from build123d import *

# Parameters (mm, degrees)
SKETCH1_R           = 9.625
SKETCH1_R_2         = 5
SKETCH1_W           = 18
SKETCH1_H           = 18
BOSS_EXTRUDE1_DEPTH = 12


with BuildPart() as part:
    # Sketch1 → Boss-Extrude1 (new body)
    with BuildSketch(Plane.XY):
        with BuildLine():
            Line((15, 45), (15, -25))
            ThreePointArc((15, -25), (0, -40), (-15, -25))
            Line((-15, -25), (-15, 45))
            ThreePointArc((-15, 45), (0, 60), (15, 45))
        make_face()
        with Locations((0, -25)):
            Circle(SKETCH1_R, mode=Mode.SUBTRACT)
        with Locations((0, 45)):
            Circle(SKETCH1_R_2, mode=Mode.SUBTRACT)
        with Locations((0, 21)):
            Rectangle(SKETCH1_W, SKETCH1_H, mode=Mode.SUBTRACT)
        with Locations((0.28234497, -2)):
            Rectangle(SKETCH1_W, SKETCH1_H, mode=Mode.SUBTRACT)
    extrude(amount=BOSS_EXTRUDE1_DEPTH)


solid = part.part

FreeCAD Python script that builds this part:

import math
import FreeCAD as App
import Part
import Sketcher
Q = App.Units.Quantity

doc = App.newDocument("Part")
params = doc.addObject("Spreadsheet::Sheet", "Params")
for row, (alias, value) in enumerate([
    ("sketch1_diameter", "10 mm"),
    ("sketch1_radius", "15 mm"),
    ("sketch1_diameter2", "19.25 mm"),
    ("sketch1_width", "18 mm"),
    ("sketch1_height", "70 mm"),
    ("pad1_length", "12 mm"),
], start=1):
    params.set(f"A{row}", alias)
    params.set(f"B{row}", "=" + value)
    params.setAlias(f"B{row}", alias)

body = doc.addObject("PartDesign::Body", "Body")

# Sketch on XY plane
sketch1 = body.newObject("Sketcher::SketchObject", "Sketch")
sketch1.AttachmentSupport = (doc.getObject("XY_Plane"), [""])
sketch1.MapMode = "FlatFace"
sketch1.addGeometry([
    Part.LineSegment(App.Vector(15, -25, 0), App.Vector(15, 45, 0)),  # 0
    Part.ArcOfCircle(Part.Circle(App.Vector(0, 45, 0), App.Vector(0, 0, 1), 15), math.radians(0), math.radians(180)),  # 1
    Part.LineSegment(App.Vector(-15, 45, 0), App.Vector(-15, -25, 0)),  # 2
    Part.ArcOfCircle(Part.Circle(App.Vector(0, -25, 0), App.Vector(0, 0, 1), 15), math.radians(180), math.radians(360)),  # 3
    Part.LineSegment(App.Vector(-9, -11, 0), App.Vector(-9, 7, 0)),  # 4
    Part.LineSegment(App.Vector(-9, 7, 0), App.Vector(9, 7, 0)),  # 5
    Part.LineSegment(App.Vector(9, 7, 0), App.Vector(9, -11, 0)),  # 6
    Part.LineSegment(App.Vector(9, -11, 0), App.Vector(-9, -11, 0)),  # 7
    Part.Circle(App.Vector(0, -25, 0), App.Vector(0, 0, 1), 10),  # 8
    Part.LineSegment(App.Vector(-9, 12, 0), App.Vector(-9, 30, 0)),  # 9
    Part.LineSegment(App.Vector(-9, 30, 0), App.Vector(9, 30, 0)),  # 10
    Part.LineSegment(App.Vector(9, 30, 0), App.Vector(9, 12, 0)),  # 11
    Part.LineSegment(App.Vector(9, 12, 0), App.Vector(-9, 12, 0)),  # 12
    Part.Circle(App.Vector(0, 45, 0), App.Vector(0, 0, 1), 5),  # 13
], False)
sketch1.addConstraint([
    Sketcher.Constraint("Tangent", 0, 2, 1, 1),
    Sketcher.Constraint("Tangent", 1, 2, 2, 1),
    Sketcher.Constraint("Tangent", 2, 2, 3, 1),
    Sketcher.Constraint("Tangent", 3, 2, 0, 1),
    Sketcher.Constraint("Coincident", 4, 2, 5, 1),
    Sketcher.Constraint("Coincident", 5, 2, 6, 1),
    Sketcher.Constraint("Coincident", 6, 2, 7, 1),
    Sketcher.Constraint("Coincident", 7, 2, 4, 1),
    Sketcher.Constraint("Coincident", 9, 2, 10, 1),
    Sketcher.Constraint("Coincident", 10, 2, 11, 1),
    Sketcher.Constraint("Coincident", 11, 2, 12, 1),
    Sketcher.Constraint("Coincident", 12, 2, 9, 1),
    Sketcher.Constraint("Vertical", 0),
    Sketcher.Constraint("Vertical", 2),
    Sketcher.Constraint("Vertical", 4),
    Sketcher.Constraint("Horizontal", 5),
    Sketcher.Constraint("Vertical", 6),
    Sketcher.Constraint("Horizontal", 7),
    Sketcher.Constraint("Vertical", 9),
    Sketcher.Constraint("Horizontal", 10),
    Sketcher.Constraint("Vertical", 11),
    Sketcher.Constraint("Horizontal", 12),
    Sketcher.Constraint("Coincident", 8, 3, 3, 3),
    Sketcher.Constraint("Coincident", 13, 3, 1, 3),
    Sketcher.Constraint("PointOnObject", 1, 3, -2),
    Sketcher.Constraint("Equal", 7, 10),
    Sketcher.Constraint("Equal", 12, 4),
    Sketcher.Constraint("Equal", 6, 9),
    Sketcher.Constraint("Diameter", 13, Q("10 mm")),
    Sketcher.Constraint("Radius", 1, Q("15 mm")),
    Sketcher.Constraint("Diameter", 8, Q("19.25 mm")),
    Sketcher.Constraint("DistanceX", 5, 1, 5, 2, Q("18 mm")),
    Sketcher.Constraint("DistanceY", 0, 1, 0, 2, Q("70 mm")),
    Sketcher.Constraint("DistanceY", -1, 1, 1, 3, Q("45 mm")),
    Sketcher.Constraint("DistanceY", -1, 1, 4, 2, Q("7 mm")),
    Sketcher.Constraint("DistanceX", 9, 2, -1, 1, Q("9 mm")),
    Sketcher.Constraint("DistanceY", -1, 1, 9, 2, Q("30 mm")),
    Sketcher.Constraint("DistanceX", 4, 2, -1, 1, Q("8.717655 mm")),
])
sketch1.setExpression("Constraints[28]", "Params.sketch1_diameter")
sketch1.setExpression("Constraints[29]", "Params.sketch1_radius")
sketch1.setExpression("Constraints[30]", "Params.sketch1_diameter2")
sketch1.setExpression("Constraints[31]", "Params.sketch1_width")
sketch1.setExpression("Constraints[32]", "Params.sketch1_height")
pad1 = body.newObject("PartDesign::Pad", "Pad")
pad1.Profile = sketch1
pad1.setExpression("Length", "Params.pad1_length")

doc.recompute()
